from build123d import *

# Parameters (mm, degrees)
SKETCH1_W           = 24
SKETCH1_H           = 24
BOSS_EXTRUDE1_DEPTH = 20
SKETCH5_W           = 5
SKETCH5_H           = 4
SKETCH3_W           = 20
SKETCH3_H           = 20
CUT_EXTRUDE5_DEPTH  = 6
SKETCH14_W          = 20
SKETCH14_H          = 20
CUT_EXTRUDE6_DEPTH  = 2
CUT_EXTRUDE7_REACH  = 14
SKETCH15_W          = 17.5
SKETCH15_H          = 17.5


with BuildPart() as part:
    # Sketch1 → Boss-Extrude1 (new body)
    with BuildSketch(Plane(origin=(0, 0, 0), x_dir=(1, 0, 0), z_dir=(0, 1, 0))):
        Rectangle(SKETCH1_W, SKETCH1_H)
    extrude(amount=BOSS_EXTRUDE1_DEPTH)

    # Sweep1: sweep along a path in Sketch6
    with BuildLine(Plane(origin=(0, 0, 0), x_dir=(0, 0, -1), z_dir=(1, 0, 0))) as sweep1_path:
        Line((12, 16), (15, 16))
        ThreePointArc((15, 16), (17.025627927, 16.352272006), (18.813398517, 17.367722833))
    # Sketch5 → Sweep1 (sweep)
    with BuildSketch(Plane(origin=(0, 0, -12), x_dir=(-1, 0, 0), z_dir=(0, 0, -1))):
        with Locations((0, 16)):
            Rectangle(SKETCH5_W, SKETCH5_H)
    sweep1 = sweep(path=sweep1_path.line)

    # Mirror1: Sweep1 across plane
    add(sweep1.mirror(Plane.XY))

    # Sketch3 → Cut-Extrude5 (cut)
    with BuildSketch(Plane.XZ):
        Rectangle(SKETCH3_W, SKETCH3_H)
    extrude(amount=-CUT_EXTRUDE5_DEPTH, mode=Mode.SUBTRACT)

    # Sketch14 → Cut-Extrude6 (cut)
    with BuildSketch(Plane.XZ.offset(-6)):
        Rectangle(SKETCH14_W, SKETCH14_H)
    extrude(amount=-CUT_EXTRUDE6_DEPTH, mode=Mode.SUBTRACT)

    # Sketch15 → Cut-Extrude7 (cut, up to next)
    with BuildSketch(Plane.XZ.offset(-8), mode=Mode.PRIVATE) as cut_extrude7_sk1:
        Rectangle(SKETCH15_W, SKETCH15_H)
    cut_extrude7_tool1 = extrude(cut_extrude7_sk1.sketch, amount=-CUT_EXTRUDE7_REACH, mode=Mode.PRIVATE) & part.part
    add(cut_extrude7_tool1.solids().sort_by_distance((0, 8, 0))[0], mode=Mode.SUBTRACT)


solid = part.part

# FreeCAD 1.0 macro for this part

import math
import FreeCAD as App
import Part
import Sketcher
Q = App.Units.Quantity

doc = App.newDocument("Part")
body = doc.addObject("PartDesign::Body", "Body")

sketch1 = body.newObject("Sketcher::SketchObject", "Sketch")
sketch1.AttachmentSupport = (doc.getObject("XZ_Plane"), [""])
sketch1.MapMode = "FlatFace"
sketch1.addGeometry([
    Part.LineSegment(App.Vector(-12, -12, 0), App.Vector(-12, 12, 0)),
    Part.LineSegment(App.Vector(-12, 12, 0), App.Vector(12, 12, 0)),
    Part.LineSegment(App.Vector(12, 12, 0), App.Vector(12, -12, 0)),
    Part.LineSegment(App.Vector(12, -12, 0), App.Vector(-12, -12, 0)),
], False)
sketch1.addConstraint([
    Sketcher.Constraint("Coincident", 0, 2, 1, 1),
    Sketcher.Constraint("Coincident", 1, 2, 2, 1),
    Sketcher.Constraint("Coincident", 2, 2, 3, 1),
    Sketcher.Constraint("Coincident", 3, 2, 0, 1),
    Sketcher.Constraint("Vertical", 0),
    Sketcher.Constraint("Horizontal", 1),
    Sketcher.Constraint("Vertical", 2),
    Sketcher.Constraint("Horizontal", 3),
    Sketcher.Constraint("Symmetric", 0, 2, 2, 2, -1, 1),
    Sketcher.Constraint("Equal", 3, 0),
    Sketcher.Constraint("DistanceX", 1, 1, 1, 2, Q("24 mm")),
])
pad1 = body.newObject("PartDesign::Pad", "Pad")
pad1.Profile = sketch1
pad1.Length = 20
pad1.Reversed = True

sketch2 = body.newObject("Sketcher::SketchObject", "Sketch001")
sketch2.AttachmentSupport = (doc.getObject("XY_Plane"), [""])
sketch2.MapMode = "FlatFace"
sketch2.AttachmentOffset = App.Placement(App.Vector(0, 0, -12), App.Rotation())
sketch2.addGeometry([
    Part.LineSegment(App.Vector(2.5, 18, 0), App.Vector(2.5, 14, 0)),
    Part.LineSegment(App.Vector(2.5, 14, 0), App.Vector(-2.5, 14, 0)),
    Part.LineSegment(App.Vector(-2.5, 14, 0), App.Vector(-2.5, 18, 0)),
    Part.LineSegment(App.Vector(-2.5, 18, 0), App.Vector(2.5, 18, 0)),
], False)
sketch2.addConstraint([
    Sketcher.Constraint("Coincident", 0, 2, 1, 1),
    Sketcher.Constraint("Coincident", 1, 2, 2, 1),
    Sketcher.Constraint("Coincident", 2, 2, 3, 1),
    Sketcher.Constraint("Coincident", 3, 2, 0, 1),
    Sketcher.Constraint("Vertical", 0),
    Sketcher.Constraint("Horizontal", 1),
    Sketcher.Constraint("Vertical", 2),
    Sketcher.Constraint("Horizontal", 3),
    Sketcher.Constraint("DistanceX", 1, 2, 1, 1, Q("5 mm")),
    Sketcher.Constraint("DistanceY", 0, 2, 0, 1, Q("4 mm")),
    Sketcher.Constraint("DistanceY", -1, 1, 0, 2, Q("14 mm")),
    Sketcher.Constraint("DistanceX", -1, 1, 0, 2, Q("2.5 mm")),
])

sketch3 = body.newObject("Sketcher::SketchObject", "Sketch002")
sketch3.AttachmentSupport = (doc.getObject("YZ_Plane"), [""])
sketch3.MapMode = "FlatFace"
sketch3.addGeometry([
    Part.LineSegment(App.Vector(16, -12, 0), App.Vector(16, -15, 0)),
    Part.ArcOfCircle(Part.Circle(App.Vector(22, -15, 0), App.Vector(0, 0, 1), 6), math.radians(-180), math.radians(-140.537993)),
], False)
sketch3.addConstraint([
    Sketcher.Constraint("Tangent", 0, 2, 1, 1),
    Sketcher.Constraint("Vertical", 0),
    Sketcher.Constraint("Radius", 1, Q("6 mm")),
    Sketcher.Constraint("DistanceY", 0, 2, 0, 1, Q("3 mm")),
    Sketcher.Constraint("DistanceX", -1, 1, 1, 3, Q("22 mm")),
    Sketcher.Constraint("DistanceY", 1, 3, -1, 1, Q("15 mm")),
    Sketcher.Constraint("DistanceY", 1, 2, -1, 1, Q("18.813399 mm")),
])
doc.recompute()

additivepipe = body.newObject("PartDesign::AdditivePipe", "AdditivePipe")
additivepipe.Profile = sketch2
additivepipe.Spine = (sketch3, ["Edge1", "Edge2"])
doc.recompute()

mirrored = body.newObject("PartDesign::Mirrored", "Mirrored")
mirrored.Originals = [additivepipe]
mirrored.MirrorPlane = (doc.getObject("XY_Plane"), [""])
body.Tip = mirrored

sketch4 = body.newObject("Sketcher::SketchObject", "Sketch003")
sketch4.AttachmentSupport = (doc.getObject("XZ_Plane"), [""])
sketch4.MapMode = "FlatFace"
sketch4.addGeometry([
    Part.LineSegment(App.Vector(-10, 10, 0), App.Vector(-10, -10, 0)),
    Part.LineSegment(App.Vector(-10, -10, 0), App.Vector(10, -10, 0)),
    Part.LineSegment(App.Vector(10, -10, 0), App.Vector(10, 10, 0)),
    Part.LineSegment(App.Vector(10, 10, 0), App.Vector(-10, 10, 0)),
], False)
sketch4.addConstraint([
    Sketcher.Constraint("Coincident", 0, 2, 1, 1),
    Sketcher.Constraint("Coincident", 1, 2, 2, 1),
    Sketcher.Constraint("Coincident", 2, 2, 3, 1),
    Sketcher.Constraint("Coincident", 3, 2, 0, 1),
    Sketcher.Constraint("Vertical", 0),
    Sketcher.Constraint("Horizontal", 1),
    Sketcher.Constraint("Vertical", 2),
    Sketcher.Constraint("Horizontal", 3),
    Sketcher.Constraint("Symmetric", 0, 2, 2, 2, -1, 1),
    Sketcher.Constraint("Equal", 3, 0),
    Sketcher.Constraint("DistanceX", 1, 1, 1, 2, Q("20 mm")),
])
pocket1 = body.newObject("PartDesign::Pocket", "Pocket")
pocket1.Profile = sketch4
pocket1.Length = 6

sketch5 = body.newObject("Sketcher::SketchObject", "Sketch004")
sketch5.AttachmentSupport = (doc.getObject("XZ_Plane"), [""])
sketch5.MapMode = "FlatFace"
sketch5.AttachmentOffset = App.Placement(App.Vector(0, 0, -6), App.Rotation())
sketch5.addGeometry([
    Part.LineSegment(App.Vector(-10, 10, 0), App.Vector(-10, -10, 0)),
    Part.LineSegment(App.Vector(-10, -10, 0), App.Vector(10, -10, 0)),
    Part.LineSegment(App.Vector(10, -10, 0), App.Vector(10, 10, 0)),
    Part.LineSegment(App.Vector(10, 10, 0), App.Vector(-10, 10, 0)),
], False)
sketch5.addConstraint([
    Sketcher.Constraint("Coincident", 0, 2, 1, 1),
    Sketcher.Constraint("Coincident", 1, 2, 2, 1),
    Sketcher.Constraint("Coincident", 2, 2, 3, 1),
    Sketcher.Constraint("Coincident", 3, 2, 0, 1),
    Sketcher.Constraint("Vertical", 0),
    Sketcher.Constraint("Horizontal", 1),
    Sketcher.Constraint("Vertical", 2),
    Sketcher.Constraint("Horizontal", 3),
    Sketcher.Constraint("Symmetric", 0, 2, 2, 2, -1, 1),
    Sketcher.Constraint("Equal", 3, 0),
    Sketcher.Constraint("DistanceX", 1, 1, 1, 2, Q("20 mm")),
])
pocket2 = body.newObject("PartDesign::Pocket", "Pocket001")
pocket2.Profile = sketch5
pocket2.Length = 2

sketch6 = body.newObject("Sketcher::SketchObject", "Sketch005")
sketch6.AttachmentSupport = (doc.getObject("XZ_Plane"), [""])
sketch6.MapMode = "FlatFace"
sketch6.AttachmentOffset = App.Placement(App.Vector(0, 0, -8), App.Rotation())
sketch6.addGeometry([
    Part.LineSegment(App.Vector(-8.75, 8.75, 0), App.Vector(-8.75, -8.75, 0)),
    Part.LineSegment(App.Vector(-8.75, -8.75, 0), App.Vector(8.75, -8.75, 0)),
    Part.LineSegment(App.Vector(8.75, -8.75, 0), App.Vector(8.75, 8.75, 0)),
    Part.LineSegment(App.Vector(8.75, 8.75, 0), App.Vector(-8.75, 8.75, 0)),
], False)
sketch6.addConstraint([
    Sketcher.Constraint("Coincident", 0, 2, 1, 1),
    Sketcher.Constraint("Coincident", 1, 2, 2, 1),
    Sketcher.Constraint("Coincident", 2, 2, 3, 1),
    Sketcher.Constraint("Coincident", 3, 2, 0, 1),
    Sketcher.Constraint("Vertical", 0),
    Sketcher.Constraint("Horizontal", 1),
    Sketcher.Constraint("Vertical", 2),
    Sketcher.Constraint("Horizontal", 3),
    Sketcher.Constraint("Symmetric", 0, 2, 2, 2, -1, 1),
    Sketcher.Constraint("Equal", 3, 0),
    Sketcher.Constraint("DistanceX", 1, 1, 1, 2, Q("17.5 mm")),
])
pocket3 = body.newObject("PartDesign::Pocket", "Pocket002")
pocket3.Profile = sketch6
pocket3.Type = "UpToFirst"

doc.recompute()
